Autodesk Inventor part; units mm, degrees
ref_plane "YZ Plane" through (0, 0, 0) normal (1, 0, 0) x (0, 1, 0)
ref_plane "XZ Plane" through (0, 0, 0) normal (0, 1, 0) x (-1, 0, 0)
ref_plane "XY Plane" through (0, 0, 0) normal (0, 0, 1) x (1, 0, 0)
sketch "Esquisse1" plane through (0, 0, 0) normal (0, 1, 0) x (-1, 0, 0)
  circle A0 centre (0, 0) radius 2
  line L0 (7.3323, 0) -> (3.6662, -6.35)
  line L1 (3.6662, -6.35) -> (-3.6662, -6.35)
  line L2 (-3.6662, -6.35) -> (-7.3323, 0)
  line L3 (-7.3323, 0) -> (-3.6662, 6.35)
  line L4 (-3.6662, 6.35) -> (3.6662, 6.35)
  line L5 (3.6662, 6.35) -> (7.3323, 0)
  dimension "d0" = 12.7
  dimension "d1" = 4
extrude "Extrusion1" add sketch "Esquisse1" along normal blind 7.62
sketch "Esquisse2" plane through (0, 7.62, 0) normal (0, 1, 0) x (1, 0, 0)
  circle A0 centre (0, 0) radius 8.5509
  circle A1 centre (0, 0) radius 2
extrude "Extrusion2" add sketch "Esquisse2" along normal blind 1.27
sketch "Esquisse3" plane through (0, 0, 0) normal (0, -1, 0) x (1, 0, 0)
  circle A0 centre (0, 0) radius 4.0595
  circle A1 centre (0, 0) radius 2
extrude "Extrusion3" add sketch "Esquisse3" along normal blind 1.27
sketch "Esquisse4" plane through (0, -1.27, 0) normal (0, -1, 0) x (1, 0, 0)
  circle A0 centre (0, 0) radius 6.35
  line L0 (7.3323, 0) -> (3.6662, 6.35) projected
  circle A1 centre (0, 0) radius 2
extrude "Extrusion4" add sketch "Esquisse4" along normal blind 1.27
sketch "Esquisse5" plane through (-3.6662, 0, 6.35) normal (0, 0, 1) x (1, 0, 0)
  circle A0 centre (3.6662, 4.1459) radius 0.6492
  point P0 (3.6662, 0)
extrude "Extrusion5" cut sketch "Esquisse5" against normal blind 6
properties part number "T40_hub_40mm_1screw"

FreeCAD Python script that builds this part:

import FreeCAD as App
import Part
import Sketcher
Q = App.Units.Quantity


def add_polygon(sketch, points):
    """Adds a closed chain of lines whose ends are joined by coincident constraints."""
    first, n = sketch.GeometryCount, len(points)
    for a, b in zip(points, points[1:] + points[:1]):
        sketch.addGeometry(Part.LineSegment(App.Vector(*a, 0), App.Vector(*b, 0)), False)
    for i in range(n):
        sketch.addConstraint(Sketcher.Constraint("Coincident", first + i, 2, first + (i + 1) % n, 1))

doc = App.newDocument("Part")
body = doc.addObject("PartDesign::Body", "Body")

# Sketch on XZ plane
sketch1 = body.newObject("Sketcher::SketchObject", "Sketch")
sketch1.AttachmentSupport = (doc.getObject("XZ_Plane"), [""])
sketch1.MapMode = "FlatFace"
add_polygon(sketch1, [(-3.7, -6.3), (-7.3, 0), (-3.7, 6.3), (3.7, 6.3), (7.3, 0), (3.7, -6.3)])  # lines 0-5
sketch1.addGeometry(Part.Circle(App.Vector(0, 0, 0), App.Vector(0, 0, 1), 2), False)  # 6
sketch1.addConstraint(Sketcher.Constraint("Horizontal", 2))
sketch1.addConstraint(Sketcher.Constraint("Horizontal", 5))
sketch1.addConstraint(Sketcher.Constraint("Coincident", 6, 3, -1, 1))
sketch1.addConstraint(Sketcher.Constraint("Symmetric", 0, 2, 3, 2, -1, 1))
sketch1.addConstraint(Sketcher.Constraint("Symmetric", 1, 2, 4, 2, -1, 1))
sketch1.addConstraint(Sketcher.Constraint("PointOnObject", 0, 2, -1))
sketch1.addConstraint(Sketcher.Constraint("Parallel", 0, 3))
sketch1.addConstraint(Sketcher.Constraint("Vertical", 2, 2, 4, 2))
sketch1.addConstraint(Sketcher.Constraint("DistanceY", 4, 2, 2, 2, Q("0.5 in")))
sketch1.addConstraint(Sketcher.Constraint("Diameter", 6, 4.0))
sketch1.addConstraint(Sketcher.Constraint("Angle", 0, Q("119.9995 deg")))
sketch1.addConstraint(Sketcher.Constraint("DistanceX", 0, 2, 2, 2, Q("0.433 in")))
pad1 = body.newObject("PartDesign::Pad", "Pad")
pad1.Profile = sketch1
pad1.Length = Q("0.3 in")
pad1.Reversed = True

# Sketch on XZ plane
sketch2 = body.newObject("Sketcher::SketchObject", "Sketch001")
sketch2.AttachmentSupport = (doc.getObject("XZ_Plane"), [""])
sketch2.MapMode = "FlatFace"
sketch2.AttachmentOffset = App.Placement(App.Vector(0, 0, -0.3 * 25.4), App.Rotation())
sketch2.addGeometry(Part.Circle(App.Vector(0, 0, 0), App.Vector(0, 0, 1), 8.6), False)
sketch2.addGeometry(Part.Circle(App.Vector(0, 0, 0), App.Vector(0, 0, 1), 2), False)
sketch2.addConstraint(Sketcher.Constraint("Coincident", 0, 3, -1, 1))
sketch2.addConstraint(Sketcher.Constraint("Coincident", 1, 3, -1, 1))
sketch2.addConstraint(Sketcher.Constraint("Diameter", 0, Q("0.6733 in")))
sketch2.addConstraint(Sketcher.Constraint("Diameter", 1, 4.0))
pad2 = body.newObject("PartDesign::Pad", "Pad001")
pad2.Profile = sketch2
pad2.Length = Q("0.05 in")
pad2.Reversed = True

# Sketch on XZ plane
sketch3 = body.newObject("Sketcher::SketchObject", "Sketch002")
sketch3.AttachmentSupport = (doc.getObject("XZ_Plane"), [""])
sketch3.MapMode = "FlatFace"
sketch3.addGeometry(Part.Circle(App.Vector(0, 0, 0), App.Vector(0, 0, 1), 4.1), False)
sketch3.addGeometry(Part.Circle(App.Vector(0, 0, 0), App.Vector(0, 0, 1), 2), False)
sketch3.addConstraint(Sketcher.Constraint("Coincident", 0, 3, -1, 1))
sketch3.addConstraint(Sketcher.Constraint("Coincident", 1, 3, -1, 1))
sketch3.addConstraint(Sketcher.Constraint("Diameter", 0, 8.119))
sketch3.addConstraint(Sketcher.Constraint("Diameter", 1, 4.0))
pad3 = body.newObject("PartDesign::Pad", "Pad002")
pad3.Profile = sketch3
pad3.Length = Q("0.05 in")

# Sketch on XZ plane
sketch4 = body.newObject("Sketcher::SketchObject", "Sketch003")
sketch4.AttachmentSupport = (doc.getObject("XZ_Plane"), [""])
sketch4.MapMode = "FlatFace"
sketch4.AttachmentOffset = App.Placement(App.Vector(0, 0, 0.05 * 25.4), App.Rotation())
sketch4.addGeometry(Part.Circle(App.Vector(0, 0, 0), App.Vector(0, 0, 1), 6.3), False)
sketch4.addGeometry(Part.Circle(App.Vector(0, 0, 0), App.Vector(0, 0, 1), 2), False)
sketch4.addConstraint(Sketcher.Constraint("Coincident", 0, 3, -1, 1))
sketch4.addConstraint(Sketcher.Constraint("Coincident", 1, 3, -1, 1))
sketch4.addConstraint(Sketcher.Constraint("Diameter", 0, Q("0.5 in")))
sketch4.addConstraint(Sketcher.Constraint("Diameter", 1, 4.0))
pad4 = body.newObject("PartDesign::Pad", "Pad003")
pad4.Profile = sketch4
pad4.Length = Q("0.05 in")

# Sketch on XY plane
sketch5 = body.newObject("Sketcher::SketchObject", "Sketch004")
sketch5.AttachmentSupport = (doc.getObject("XY_Plane"), [""])
sketch5.MapMode = "FlatFace"
sketch5.AttachmentOffset = App.Placement(App.Vector(0, 0, 0.25 * 25.4), App.Rotation())
sketch5.addGeometry(Part.Circle(App.Vector(0, 4.1, 0), App.Vector(0, 0, 1), 0.6), False)
sketch5.addConstraint(Sketcher.Constraint("PointOnObject", 0, 3, -2))
sketch5.addConstraint(Sketcher.Constraint("Diameter", 0, 1.2984))
sketch5.addConstraint(Sketcher.Constraint("DistanceY", -1, 1, 0, 3, 4.146))
pocket1 = body.newObject("PartDesign::Pocket", "Pocket")
pocket1.Profile = sketch5
pocket1.Length = 6

doc.recompute()
